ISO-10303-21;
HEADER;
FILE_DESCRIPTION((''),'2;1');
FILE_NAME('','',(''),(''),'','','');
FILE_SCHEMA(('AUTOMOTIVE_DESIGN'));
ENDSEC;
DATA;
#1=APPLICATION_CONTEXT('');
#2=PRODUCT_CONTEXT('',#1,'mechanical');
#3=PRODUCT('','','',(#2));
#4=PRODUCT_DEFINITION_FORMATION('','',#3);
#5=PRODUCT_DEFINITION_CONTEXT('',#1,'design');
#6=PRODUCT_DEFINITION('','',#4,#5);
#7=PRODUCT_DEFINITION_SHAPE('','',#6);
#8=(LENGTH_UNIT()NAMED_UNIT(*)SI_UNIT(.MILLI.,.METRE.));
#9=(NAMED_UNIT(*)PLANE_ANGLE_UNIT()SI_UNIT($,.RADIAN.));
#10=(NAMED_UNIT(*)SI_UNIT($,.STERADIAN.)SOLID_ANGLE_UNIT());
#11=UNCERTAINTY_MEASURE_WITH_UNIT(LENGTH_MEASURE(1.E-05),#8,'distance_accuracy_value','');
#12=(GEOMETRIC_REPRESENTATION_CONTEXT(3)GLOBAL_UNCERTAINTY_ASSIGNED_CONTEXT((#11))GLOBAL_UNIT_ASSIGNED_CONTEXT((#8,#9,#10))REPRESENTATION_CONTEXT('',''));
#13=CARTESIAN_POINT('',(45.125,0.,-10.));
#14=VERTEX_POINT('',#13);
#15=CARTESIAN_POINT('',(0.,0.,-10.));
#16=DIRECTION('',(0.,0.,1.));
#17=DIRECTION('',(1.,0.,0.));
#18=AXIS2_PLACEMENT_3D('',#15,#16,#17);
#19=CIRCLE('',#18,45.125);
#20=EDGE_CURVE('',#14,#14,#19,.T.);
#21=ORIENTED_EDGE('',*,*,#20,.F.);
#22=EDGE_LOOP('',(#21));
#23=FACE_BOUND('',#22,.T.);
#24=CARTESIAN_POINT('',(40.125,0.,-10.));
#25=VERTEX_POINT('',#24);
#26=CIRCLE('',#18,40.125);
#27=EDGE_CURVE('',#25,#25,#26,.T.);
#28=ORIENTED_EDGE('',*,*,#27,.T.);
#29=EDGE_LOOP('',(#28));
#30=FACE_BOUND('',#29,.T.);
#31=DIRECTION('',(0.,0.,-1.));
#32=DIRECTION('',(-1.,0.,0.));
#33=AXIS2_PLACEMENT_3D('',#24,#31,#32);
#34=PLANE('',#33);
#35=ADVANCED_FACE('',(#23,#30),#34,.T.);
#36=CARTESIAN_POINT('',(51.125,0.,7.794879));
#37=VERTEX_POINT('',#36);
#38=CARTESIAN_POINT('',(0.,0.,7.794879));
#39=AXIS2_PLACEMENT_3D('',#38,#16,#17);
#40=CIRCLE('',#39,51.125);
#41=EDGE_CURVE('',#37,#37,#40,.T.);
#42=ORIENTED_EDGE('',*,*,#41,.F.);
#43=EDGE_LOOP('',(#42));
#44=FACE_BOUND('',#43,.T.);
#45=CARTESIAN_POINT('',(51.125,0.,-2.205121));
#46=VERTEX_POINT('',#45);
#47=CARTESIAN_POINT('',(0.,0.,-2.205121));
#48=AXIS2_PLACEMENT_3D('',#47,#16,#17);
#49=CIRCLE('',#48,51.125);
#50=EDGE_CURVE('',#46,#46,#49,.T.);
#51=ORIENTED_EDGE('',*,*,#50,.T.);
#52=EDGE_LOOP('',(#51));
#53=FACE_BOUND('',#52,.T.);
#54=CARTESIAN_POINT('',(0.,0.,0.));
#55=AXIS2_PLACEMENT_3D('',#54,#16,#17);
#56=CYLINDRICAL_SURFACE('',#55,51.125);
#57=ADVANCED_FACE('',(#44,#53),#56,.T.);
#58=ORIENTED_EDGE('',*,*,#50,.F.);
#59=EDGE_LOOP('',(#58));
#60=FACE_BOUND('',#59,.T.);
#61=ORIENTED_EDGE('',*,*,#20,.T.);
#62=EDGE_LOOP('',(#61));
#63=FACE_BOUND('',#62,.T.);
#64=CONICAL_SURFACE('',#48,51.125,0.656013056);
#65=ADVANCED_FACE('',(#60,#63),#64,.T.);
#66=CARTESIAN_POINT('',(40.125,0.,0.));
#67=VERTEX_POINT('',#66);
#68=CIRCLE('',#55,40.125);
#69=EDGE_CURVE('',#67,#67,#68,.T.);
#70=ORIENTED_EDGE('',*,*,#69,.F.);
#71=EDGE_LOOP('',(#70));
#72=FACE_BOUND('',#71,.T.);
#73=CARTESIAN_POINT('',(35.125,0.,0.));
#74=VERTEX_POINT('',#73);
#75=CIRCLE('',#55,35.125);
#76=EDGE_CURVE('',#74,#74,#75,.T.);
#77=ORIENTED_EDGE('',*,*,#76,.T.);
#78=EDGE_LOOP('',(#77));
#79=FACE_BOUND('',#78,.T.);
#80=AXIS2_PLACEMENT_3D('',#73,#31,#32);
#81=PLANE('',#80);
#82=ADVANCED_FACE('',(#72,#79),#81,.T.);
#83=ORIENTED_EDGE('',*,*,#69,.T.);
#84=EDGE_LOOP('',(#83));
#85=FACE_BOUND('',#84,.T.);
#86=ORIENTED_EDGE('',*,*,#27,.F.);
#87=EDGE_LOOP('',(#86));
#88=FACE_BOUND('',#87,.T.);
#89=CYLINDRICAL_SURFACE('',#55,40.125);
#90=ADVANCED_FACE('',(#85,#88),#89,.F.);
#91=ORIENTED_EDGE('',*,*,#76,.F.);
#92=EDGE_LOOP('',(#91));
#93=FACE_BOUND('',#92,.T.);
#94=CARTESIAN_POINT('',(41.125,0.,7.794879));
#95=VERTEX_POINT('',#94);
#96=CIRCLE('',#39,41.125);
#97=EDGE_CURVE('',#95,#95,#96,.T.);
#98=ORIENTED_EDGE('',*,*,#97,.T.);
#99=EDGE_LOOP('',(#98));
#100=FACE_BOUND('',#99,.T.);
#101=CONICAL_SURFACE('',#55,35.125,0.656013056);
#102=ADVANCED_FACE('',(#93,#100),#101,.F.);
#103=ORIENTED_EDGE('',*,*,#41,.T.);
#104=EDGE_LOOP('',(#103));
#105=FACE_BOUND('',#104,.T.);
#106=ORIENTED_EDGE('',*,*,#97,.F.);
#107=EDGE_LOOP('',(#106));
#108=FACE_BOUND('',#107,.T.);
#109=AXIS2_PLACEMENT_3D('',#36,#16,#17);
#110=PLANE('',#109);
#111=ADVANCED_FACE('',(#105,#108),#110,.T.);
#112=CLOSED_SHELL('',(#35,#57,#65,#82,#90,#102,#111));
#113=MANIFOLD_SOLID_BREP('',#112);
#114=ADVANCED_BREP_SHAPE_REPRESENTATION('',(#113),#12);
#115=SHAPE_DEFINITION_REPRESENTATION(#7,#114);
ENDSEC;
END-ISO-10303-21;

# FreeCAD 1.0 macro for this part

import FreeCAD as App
import Part
import Sketcher
from FreeCAD import Vector

doc = App.newDocument("Part")
body = doc.addObject("PartDesign::Body", "Body")

sketch1 = body.newObject("Sketcher::SketchObject", "Sketch")
sketch1.AttachmentSupport = (doc.getObject("XZ_Plane"), [""])
sketch1.MapMode = "FlatFace"
sketch1.addGeometry([
    Part.LineSegment(Vector(40.125, -10, 0), Vector(40.125, 0, 0)),
    Part.LineSegment(Vector(40.125, 0, 0), Vector(35.125, 0, 0)),
    Part.LineSegment(Vector(35.125, 0, 0), Vector(41.125, 7.794879, 0)),
    Part.LineSegment(Vector(41.125, 7.794879, 0), Vector(51.125, 7.794879, 0)),
    Part.LineSegment(Vector(51.125, 7.794879, 0), Vector(51.125, -2.205121, 0)),
    Part.LineSegment(Vector(51.125, -2.205121, 0), Vector(45.125, -10, 0)),
    Part.LineSegment(Vector(45.125, -10, 0), Vector(40.125, -10, 0)),
], False)
sketch1.addConstraint([
    Sketcher.Constraint("Coincident", 0, 2, 1, 1),
    Sketcher.Constraint("Coincident", 1, 2, 2, 1),
    Sketcher.Constraint("Coincident", 2, 2, 3, 1),
    Sketcher.Constraint("Coincident", 3, 2, 4, 1),
    Sketcher.Constraint("Coincident", 4, 2, 5, 1),
    Sketcher.Constraint("Coincident", 5, 2, 6, 1),
    Sketcher.Constraint("Coincident", 6, 2, 0, 1),
    Sketcher.Constraint("Vertical", 0),
    Sketcher.Constraint("Horizontal", 1),
    Sketcher.Constraint("Horizontal", 3),
    Sketcher.Constraint("Vertical", 4),
    Sketcher.Constraint("Horizontal", 6),
    Sketcher.Constraint("PointOnObject", 0, 2, -1),
    Sketcher.Constraint("Parallel", 2, 5),
    Sketcher.Constraint("Equal", 1, 6),
    Sketcher.Constraint("Equal", 3, 0),
    Sketcher.Constraint("Equal", 0, 4),
    Sketcher.Constraint("DistanceX", 1, 2, 1, 1, 5.0),
    Sketcher.Constraint("DistanceX", 0, 2, 2, 2, 1.0),
    Sketcher.Constraint("DistanceX", -1, 1, 0, 2, 40.125),
    Sketcher.Constraint("DistanceY", -1, 1, 2, 2, 7.794879),
])
revolution = body.newObject("PartDesign::Revolution", "Revolution")
revolution.Profile = sketch1
revolution.ReferenceAxis = (sketch1, ["V_Axis"])
revolution.Angle = 360

doc.recompute()
